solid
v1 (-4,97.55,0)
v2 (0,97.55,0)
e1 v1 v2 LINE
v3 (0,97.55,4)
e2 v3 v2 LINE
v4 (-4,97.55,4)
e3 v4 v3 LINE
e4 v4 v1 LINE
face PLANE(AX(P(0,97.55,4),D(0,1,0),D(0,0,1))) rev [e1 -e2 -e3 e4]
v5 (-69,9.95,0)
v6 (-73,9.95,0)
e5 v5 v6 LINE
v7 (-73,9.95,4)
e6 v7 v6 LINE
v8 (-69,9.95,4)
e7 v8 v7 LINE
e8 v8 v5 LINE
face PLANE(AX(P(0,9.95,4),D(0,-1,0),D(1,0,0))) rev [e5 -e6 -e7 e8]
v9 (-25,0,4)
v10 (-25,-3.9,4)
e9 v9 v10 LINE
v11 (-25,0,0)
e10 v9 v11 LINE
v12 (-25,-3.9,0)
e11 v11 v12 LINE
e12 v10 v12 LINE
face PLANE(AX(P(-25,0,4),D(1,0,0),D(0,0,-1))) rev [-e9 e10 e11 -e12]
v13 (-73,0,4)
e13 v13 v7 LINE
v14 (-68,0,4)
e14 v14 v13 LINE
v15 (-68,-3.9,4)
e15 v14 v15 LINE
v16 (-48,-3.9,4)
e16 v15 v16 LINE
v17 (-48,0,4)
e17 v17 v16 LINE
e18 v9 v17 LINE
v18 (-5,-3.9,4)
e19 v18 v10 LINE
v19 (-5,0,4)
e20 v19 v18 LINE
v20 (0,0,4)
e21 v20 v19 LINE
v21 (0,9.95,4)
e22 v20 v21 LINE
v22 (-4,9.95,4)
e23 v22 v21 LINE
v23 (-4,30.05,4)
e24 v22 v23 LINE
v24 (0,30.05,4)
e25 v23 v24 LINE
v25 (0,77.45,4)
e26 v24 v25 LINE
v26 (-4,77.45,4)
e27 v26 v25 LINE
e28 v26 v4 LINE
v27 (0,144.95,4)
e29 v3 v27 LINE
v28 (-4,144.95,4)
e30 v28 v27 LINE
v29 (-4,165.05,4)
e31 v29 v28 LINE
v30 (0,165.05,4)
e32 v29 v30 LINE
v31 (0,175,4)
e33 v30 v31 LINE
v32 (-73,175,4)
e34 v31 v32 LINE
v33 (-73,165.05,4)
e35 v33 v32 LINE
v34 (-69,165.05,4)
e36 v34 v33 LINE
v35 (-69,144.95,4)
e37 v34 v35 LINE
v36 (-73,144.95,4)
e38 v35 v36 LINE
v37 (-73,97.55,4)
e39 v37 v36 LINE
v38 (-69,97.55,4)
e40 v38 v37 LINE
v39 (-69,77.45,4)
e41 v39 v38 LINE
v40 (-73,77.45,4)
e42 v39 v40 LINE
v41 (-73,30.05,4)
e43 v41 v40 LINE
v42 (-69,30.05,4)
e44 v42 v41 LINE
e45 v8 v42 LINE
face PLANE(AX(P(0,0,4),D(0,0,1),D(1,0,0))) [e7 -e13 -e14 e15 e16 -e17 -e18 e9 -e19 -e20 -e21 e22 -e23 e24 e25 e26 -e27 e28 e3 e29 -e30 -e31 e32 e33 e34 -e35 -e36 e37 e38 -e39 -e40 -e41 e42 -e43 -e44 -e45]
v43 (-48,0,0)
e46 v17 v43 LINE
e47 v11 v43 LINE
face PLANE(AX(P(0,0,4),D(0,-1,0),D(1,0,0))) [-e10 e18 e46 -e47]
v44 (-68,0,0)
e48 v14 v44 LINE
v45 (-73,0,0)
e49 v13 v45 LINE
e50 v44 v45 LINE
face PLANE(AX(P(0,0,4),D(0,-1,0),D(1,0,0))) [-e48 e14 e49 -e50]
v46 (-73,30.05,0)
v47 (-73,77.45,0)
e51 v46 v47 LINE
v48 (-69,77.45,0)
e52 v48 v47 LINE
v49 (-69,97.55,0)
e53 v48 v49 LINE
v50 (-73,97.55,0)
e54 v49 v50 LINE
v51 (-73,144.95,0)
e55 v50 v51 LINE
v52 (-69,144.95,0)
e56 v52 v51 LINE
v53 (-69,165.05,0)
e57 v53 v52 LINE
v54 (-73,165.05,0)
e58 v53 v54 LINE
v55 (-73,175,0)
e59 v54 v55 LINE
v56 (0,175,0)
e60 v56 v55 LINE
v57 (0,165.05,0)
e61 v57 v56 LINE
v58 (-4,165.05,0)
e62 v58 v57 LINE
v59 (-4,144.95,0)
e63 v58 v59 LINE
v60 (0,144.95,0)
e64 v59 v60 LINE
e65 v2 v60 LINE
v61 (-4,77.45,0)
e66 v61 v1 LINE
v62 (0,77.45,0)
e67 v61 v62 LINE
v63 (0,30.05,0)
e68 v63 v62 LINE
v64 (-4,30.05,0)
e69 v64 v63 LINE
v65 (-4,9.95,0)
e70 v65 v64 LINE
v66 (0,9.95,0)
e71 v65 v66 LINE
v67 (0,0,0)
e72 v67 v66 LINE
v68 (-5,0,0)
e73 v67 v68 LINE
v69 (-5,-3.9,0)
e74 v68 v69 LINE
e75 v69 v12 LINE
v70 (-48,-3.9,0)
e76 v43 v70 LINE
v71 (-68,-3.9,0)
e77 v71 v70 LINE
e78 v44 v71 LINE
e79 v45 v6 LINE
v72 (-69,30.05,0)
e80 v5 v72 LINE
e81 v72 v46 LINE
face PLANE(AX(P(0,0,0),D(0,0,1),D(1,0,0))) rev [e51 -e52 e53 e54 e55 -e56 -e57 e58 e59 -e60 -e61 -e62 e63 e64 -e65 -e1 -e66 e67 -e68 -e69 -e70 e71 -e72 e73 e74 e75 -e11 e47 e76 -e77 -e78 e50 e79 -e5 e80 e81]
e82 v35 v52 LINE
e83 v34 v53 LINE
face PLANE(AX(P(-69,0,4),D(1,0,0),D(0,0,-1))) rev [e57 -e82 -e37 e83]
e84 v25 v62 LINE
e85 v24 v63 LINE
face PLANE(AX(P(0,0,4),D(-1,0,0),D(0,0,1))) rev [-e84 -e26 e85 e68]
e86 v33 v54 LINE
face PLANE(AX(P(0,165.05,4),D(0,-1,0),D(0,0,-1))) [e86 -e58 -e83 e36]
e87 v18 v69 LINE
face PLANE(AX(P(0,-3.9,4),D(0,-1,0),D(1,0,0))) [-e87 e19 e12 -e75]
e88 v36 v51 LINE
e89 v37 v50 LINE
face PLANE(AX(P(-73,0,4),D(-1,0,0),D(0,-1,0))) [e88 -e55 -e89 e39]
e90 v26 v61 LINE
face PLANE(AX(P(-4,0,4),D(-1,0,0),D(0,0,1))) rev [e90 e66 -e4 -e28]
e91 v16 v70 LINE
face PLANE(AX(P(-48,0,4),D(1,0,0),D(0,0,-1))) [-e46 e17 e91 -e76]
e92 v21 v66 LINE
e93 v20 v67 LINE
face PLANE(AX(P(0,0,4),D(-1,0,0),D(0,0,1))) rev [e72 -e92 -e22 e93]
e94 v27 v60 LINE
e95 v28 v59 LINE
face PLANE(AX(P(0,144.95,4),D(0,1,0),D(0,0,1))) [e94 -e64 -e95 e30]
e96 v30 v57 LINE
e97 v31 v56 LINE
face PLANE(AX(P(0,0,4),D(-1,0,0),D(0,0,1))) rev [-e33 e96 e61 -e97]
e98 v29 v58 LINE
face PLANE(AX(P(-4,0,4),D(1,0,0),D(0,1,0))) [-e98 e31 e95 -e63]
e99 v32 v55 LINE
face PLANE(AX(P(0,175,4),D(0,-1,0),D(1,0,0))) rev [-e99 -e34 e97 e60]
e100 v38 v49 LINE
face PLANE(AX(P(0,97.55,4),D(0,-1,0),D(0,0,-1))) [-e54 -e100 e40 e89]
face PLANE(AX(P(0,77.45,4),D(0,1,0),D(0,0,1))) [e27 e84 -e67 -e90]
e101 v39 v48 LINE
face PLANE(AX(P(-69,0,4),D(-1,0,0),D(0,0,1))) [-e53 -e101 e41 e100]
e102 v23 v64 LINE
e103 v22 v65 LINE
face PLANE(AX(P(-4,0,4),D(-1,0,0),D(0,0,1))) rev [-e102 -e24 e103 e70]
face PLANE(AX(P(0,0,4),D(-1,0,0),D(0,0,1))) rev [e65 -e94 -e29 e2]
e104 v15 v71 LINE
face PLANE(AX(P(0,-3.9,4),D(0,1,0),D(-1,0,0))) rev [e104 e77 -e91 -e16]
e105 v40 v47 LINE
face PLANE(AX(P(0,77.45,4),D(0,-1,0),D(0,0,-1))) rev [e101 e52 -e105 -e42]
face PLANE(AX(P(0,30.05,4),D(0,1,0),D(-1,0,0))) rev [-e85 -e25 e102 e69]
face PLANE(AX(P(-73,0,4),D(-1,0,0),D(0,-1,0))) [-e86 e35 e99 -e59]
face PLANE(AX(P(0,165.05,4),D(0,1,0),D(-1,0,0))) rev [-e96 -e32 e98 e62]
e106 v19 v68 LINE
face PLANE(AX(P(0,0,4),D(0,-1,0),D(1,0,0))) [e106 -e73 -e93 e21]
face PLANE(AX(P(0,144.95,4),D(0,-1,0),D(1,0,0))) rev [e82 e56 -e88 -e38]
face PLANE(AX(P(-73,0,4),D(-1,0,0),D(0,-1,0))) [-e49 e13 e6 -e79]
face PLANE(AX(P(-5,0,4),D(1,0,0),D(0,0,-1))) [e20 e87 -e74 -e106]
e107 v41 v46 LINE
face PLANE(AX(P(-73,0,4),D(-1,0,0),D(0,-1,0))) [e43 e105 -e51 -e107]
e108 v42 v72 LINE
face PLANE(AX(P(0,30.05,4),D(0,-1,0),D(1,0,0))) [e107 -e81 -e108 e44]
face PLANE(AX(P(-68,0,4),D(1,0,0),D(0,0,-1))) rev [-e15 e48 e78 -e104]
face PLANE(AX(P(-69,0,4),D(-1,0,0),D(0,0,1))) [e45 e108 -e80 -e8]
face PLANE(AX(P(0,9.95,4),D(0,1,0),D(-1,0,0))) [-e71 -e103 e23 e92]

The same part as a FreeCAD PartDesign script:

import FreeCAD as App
import Part
import Sketcher
Q = App.Units.Quantity


def add_polygon(sketch, points):
    """Adds a closed chain of lines whose ends are joined by coincident constraints."""
    first, n = sketch.GeometryCount, len(points)
    for a, b in zip(points, points[1:] + points[:1]):
        sketch.addGeometry(Part.LineSegment(App.Vector(*a, 0), App.Vector(*b, 0)), False)
    for i in range(n):
        sketch.addConstraint(Sketcher.Constraint("Coincident", first + i, 2, first + (i + 1) % n, 1))

doc = App.newDocument("Part")
body = doc.addObject("PartDesign::Body", "Body")

sketch1 = doc.addObject("Sketcher::SketchObject", "Sketch")
body.addObject(sketch1)
sketch1.AttachmentSupport = (doc.XY_Plane, [""])
sketch1.MapMode = "FlatFace"
add_polygon(sketch1, [(-25, -3.9), (-5, -3.9), (-5, 0), (0, 0), (0, 9.9), (-4, 9.9), (-4, 30.1), (0, 30.1), (0, 77.5), (-4, 77.5), (-4, 97.5), (0, 97.5), (0, 144.9), (-4, 144.9), (-4, 165.1), (0, 165.1), (0, 175), (-73, 175), (-73, 165.1), (-69, 165.1), (-69, 144.9), (-73, 144.9), (-73, 97.5), (-69, 97.5), (-69, 77.5), (-73, 77.5), (-73, 30.1), (-69, 30.1), (-69, 9.9), (-73, 9.9), (-73, 0), (-68, 0), (-68, -3.9), (-48, -3.9), (-48, 0), (-25, 0)])
sketch1.addConstraint([
    Sketcher.Constraint("Horizontal", 0),
    Sketcher.Constraint("Vertical", 1),
    Sketcher.Constraint("Horizontal", 2),
    Sketcher.Constraint("Vertical", 3),
    Sketcher.Constraint("Horizontal", 4),
    Sketcher.Constraint("Vertical", 5),
    Sketcher.Constraint("Horizontal", 6),
    Sketcher.Constraint("Vertical", 7),
    Sketcher.Constraint("Horizontal", 8),
    Sketcher.Constraint("Vertical", 9),
    Sketcher.Constraint("Horizontal", 10),
    Sketcher.Constraint("Vertical", 11),
    Sketcher.Constraint("Horizontal", 12),
    Sketcher.Constraint("Vertical", 13),
    Sketcher.Constraint("Horizontal", 14),
    Sketcher.Constraint("Vertical", 15),
    Sketcher.Constraint("Horizontal", 16),
    Sketcher.Constraint("Vertical", 17),
    Sketcher.Constraint("Horizontal", 18),
    Sketcher.Constraint("Vertical", 19),
    Sketcher.Constraint("Horizontal", 20),
    Sketcher.Constraint("Vertical", 21),
    Sketcher.Constraint("Horizontal", 22),
    Sketcher.Constraint("Vertical", 23),
    Sketcher.Constraint("Horizontal", 24),
    Sketcher.Constraint("Vertical", 25),
    Sketcher.Constraint("Horizontal", 26),
    Sketcher.Constraint("Vertical", 27),
    Sketcher.Constraint("Horizontal", 28),
    Sketcher.Constraint("Vertical", 29),
    Sketcher.Constraint("Horizontal", 30),
    Sketcher.Constraint("Vertical", 31),
    Sketcher.Constraint("Horizontal", 32),
    Sketcher.Constraint("Vertical", 33),
    Sketcher.Constraint("Horizontal", 34),
    Sketcher.Constraint("Vertical", 35),
    Sketcher.Constraint("Coincident", 2, 2, -1, 1),
    Sketcher.Constraint("PointOnObject", 6, 2, -2),
    Sketcher.Constraint("PointOnObject", 10, 2, -2),
    Sketcher.Constraint("PointOnObject", 14, 2, -2),
    Sketcher.Constraint("PointOnObject", 29, 2, -1),
    Sketcher.Constraint("PointOnObject", 33, 2, -1),
    Sketcher.Constraint("Horizontal", 14, 2, 17, 2),
    Sketcher.Constraint("Horizontal", 12, 2, 19, 2),
    Sketcher.Constraint("Horizontal", 10, 2, 21, 2),
    Sketcher.Constraint("Horizontal", 8, 2, 23, 2),
    Sketcher.Constraint("Horizontal", 6, 2, 25, 2),
    Sketcher.Constraint("Horizontal", 4, 2, 27, 2),
    Sketcher.Constraint("Horizontal", 0, 2, 31, 2),
    Sketcher.Constraint("Vertical", 5, 2, 8, 2),
    Sketcher.Constraint("Vertical", 9, 2, 12, 2),
    Sketcher.Constraint("Vertical", 17, 2, 20, 2),
    Sketcher.Constraint("Vertical", 19, 2, 22, 2),
    Sketcher.Constraint("Vertical", 21, 2, 24, 2),
    Sketcher.Constraint("Vertical", 23, 2, 26, 2),
    Sketcher.Constraint("Vertical", 25, 2, 28, 2),
    Sketcher.Constraint("Equal", 14, 18),
    Sketcher.Constraint("Equal", 2, 30),
    Sketcher.Constraint("Equal", 0, 32),
    Sketcher.Constraint("Equal", 5, 9),
    Sketcher.Constraint("Equal", 7, 11),
    Sketcher.Constraint("Equal", 9, 13),
    Sketcher.Constraint("Equal", 3, 15),
    Sketcher.Constraint("DistanceX", 0, 1, 0, 2, Q("20 mm")),
    Sketcher.Constraint("DistanceX", 2, 1, 2, 2, Q("5 mm")),
    Sketcher.Constraint("DistanceX", 4, 2, 4, 1, Q("4 mm")),
    Sketcher.Constraint("DistanceX", 16, 2, 16, 1, Q("73 mm")),
    Sketcher.Constraint("DistanceY", 1, 1, 1, 2, Q("3.9 mm")),
    Sketcher.Constraint("DistanceY", 5, 1, 5, 2, Q("20.1 mm")),
    Sketcher.Constraint("DistanceY", 7, 1, 7, 2, Q("47.4 mm")),
    Sketcher.Constraint("DistanceY", -1, 1, 15, 2, Q("175 mm")),
])
pad1 = doc.addObject("PartDesign::Pad", "Pad")
body.addObject(pad1)
pad1.Profile = sketch1
pad1.Length = 4

doc.recompute()
